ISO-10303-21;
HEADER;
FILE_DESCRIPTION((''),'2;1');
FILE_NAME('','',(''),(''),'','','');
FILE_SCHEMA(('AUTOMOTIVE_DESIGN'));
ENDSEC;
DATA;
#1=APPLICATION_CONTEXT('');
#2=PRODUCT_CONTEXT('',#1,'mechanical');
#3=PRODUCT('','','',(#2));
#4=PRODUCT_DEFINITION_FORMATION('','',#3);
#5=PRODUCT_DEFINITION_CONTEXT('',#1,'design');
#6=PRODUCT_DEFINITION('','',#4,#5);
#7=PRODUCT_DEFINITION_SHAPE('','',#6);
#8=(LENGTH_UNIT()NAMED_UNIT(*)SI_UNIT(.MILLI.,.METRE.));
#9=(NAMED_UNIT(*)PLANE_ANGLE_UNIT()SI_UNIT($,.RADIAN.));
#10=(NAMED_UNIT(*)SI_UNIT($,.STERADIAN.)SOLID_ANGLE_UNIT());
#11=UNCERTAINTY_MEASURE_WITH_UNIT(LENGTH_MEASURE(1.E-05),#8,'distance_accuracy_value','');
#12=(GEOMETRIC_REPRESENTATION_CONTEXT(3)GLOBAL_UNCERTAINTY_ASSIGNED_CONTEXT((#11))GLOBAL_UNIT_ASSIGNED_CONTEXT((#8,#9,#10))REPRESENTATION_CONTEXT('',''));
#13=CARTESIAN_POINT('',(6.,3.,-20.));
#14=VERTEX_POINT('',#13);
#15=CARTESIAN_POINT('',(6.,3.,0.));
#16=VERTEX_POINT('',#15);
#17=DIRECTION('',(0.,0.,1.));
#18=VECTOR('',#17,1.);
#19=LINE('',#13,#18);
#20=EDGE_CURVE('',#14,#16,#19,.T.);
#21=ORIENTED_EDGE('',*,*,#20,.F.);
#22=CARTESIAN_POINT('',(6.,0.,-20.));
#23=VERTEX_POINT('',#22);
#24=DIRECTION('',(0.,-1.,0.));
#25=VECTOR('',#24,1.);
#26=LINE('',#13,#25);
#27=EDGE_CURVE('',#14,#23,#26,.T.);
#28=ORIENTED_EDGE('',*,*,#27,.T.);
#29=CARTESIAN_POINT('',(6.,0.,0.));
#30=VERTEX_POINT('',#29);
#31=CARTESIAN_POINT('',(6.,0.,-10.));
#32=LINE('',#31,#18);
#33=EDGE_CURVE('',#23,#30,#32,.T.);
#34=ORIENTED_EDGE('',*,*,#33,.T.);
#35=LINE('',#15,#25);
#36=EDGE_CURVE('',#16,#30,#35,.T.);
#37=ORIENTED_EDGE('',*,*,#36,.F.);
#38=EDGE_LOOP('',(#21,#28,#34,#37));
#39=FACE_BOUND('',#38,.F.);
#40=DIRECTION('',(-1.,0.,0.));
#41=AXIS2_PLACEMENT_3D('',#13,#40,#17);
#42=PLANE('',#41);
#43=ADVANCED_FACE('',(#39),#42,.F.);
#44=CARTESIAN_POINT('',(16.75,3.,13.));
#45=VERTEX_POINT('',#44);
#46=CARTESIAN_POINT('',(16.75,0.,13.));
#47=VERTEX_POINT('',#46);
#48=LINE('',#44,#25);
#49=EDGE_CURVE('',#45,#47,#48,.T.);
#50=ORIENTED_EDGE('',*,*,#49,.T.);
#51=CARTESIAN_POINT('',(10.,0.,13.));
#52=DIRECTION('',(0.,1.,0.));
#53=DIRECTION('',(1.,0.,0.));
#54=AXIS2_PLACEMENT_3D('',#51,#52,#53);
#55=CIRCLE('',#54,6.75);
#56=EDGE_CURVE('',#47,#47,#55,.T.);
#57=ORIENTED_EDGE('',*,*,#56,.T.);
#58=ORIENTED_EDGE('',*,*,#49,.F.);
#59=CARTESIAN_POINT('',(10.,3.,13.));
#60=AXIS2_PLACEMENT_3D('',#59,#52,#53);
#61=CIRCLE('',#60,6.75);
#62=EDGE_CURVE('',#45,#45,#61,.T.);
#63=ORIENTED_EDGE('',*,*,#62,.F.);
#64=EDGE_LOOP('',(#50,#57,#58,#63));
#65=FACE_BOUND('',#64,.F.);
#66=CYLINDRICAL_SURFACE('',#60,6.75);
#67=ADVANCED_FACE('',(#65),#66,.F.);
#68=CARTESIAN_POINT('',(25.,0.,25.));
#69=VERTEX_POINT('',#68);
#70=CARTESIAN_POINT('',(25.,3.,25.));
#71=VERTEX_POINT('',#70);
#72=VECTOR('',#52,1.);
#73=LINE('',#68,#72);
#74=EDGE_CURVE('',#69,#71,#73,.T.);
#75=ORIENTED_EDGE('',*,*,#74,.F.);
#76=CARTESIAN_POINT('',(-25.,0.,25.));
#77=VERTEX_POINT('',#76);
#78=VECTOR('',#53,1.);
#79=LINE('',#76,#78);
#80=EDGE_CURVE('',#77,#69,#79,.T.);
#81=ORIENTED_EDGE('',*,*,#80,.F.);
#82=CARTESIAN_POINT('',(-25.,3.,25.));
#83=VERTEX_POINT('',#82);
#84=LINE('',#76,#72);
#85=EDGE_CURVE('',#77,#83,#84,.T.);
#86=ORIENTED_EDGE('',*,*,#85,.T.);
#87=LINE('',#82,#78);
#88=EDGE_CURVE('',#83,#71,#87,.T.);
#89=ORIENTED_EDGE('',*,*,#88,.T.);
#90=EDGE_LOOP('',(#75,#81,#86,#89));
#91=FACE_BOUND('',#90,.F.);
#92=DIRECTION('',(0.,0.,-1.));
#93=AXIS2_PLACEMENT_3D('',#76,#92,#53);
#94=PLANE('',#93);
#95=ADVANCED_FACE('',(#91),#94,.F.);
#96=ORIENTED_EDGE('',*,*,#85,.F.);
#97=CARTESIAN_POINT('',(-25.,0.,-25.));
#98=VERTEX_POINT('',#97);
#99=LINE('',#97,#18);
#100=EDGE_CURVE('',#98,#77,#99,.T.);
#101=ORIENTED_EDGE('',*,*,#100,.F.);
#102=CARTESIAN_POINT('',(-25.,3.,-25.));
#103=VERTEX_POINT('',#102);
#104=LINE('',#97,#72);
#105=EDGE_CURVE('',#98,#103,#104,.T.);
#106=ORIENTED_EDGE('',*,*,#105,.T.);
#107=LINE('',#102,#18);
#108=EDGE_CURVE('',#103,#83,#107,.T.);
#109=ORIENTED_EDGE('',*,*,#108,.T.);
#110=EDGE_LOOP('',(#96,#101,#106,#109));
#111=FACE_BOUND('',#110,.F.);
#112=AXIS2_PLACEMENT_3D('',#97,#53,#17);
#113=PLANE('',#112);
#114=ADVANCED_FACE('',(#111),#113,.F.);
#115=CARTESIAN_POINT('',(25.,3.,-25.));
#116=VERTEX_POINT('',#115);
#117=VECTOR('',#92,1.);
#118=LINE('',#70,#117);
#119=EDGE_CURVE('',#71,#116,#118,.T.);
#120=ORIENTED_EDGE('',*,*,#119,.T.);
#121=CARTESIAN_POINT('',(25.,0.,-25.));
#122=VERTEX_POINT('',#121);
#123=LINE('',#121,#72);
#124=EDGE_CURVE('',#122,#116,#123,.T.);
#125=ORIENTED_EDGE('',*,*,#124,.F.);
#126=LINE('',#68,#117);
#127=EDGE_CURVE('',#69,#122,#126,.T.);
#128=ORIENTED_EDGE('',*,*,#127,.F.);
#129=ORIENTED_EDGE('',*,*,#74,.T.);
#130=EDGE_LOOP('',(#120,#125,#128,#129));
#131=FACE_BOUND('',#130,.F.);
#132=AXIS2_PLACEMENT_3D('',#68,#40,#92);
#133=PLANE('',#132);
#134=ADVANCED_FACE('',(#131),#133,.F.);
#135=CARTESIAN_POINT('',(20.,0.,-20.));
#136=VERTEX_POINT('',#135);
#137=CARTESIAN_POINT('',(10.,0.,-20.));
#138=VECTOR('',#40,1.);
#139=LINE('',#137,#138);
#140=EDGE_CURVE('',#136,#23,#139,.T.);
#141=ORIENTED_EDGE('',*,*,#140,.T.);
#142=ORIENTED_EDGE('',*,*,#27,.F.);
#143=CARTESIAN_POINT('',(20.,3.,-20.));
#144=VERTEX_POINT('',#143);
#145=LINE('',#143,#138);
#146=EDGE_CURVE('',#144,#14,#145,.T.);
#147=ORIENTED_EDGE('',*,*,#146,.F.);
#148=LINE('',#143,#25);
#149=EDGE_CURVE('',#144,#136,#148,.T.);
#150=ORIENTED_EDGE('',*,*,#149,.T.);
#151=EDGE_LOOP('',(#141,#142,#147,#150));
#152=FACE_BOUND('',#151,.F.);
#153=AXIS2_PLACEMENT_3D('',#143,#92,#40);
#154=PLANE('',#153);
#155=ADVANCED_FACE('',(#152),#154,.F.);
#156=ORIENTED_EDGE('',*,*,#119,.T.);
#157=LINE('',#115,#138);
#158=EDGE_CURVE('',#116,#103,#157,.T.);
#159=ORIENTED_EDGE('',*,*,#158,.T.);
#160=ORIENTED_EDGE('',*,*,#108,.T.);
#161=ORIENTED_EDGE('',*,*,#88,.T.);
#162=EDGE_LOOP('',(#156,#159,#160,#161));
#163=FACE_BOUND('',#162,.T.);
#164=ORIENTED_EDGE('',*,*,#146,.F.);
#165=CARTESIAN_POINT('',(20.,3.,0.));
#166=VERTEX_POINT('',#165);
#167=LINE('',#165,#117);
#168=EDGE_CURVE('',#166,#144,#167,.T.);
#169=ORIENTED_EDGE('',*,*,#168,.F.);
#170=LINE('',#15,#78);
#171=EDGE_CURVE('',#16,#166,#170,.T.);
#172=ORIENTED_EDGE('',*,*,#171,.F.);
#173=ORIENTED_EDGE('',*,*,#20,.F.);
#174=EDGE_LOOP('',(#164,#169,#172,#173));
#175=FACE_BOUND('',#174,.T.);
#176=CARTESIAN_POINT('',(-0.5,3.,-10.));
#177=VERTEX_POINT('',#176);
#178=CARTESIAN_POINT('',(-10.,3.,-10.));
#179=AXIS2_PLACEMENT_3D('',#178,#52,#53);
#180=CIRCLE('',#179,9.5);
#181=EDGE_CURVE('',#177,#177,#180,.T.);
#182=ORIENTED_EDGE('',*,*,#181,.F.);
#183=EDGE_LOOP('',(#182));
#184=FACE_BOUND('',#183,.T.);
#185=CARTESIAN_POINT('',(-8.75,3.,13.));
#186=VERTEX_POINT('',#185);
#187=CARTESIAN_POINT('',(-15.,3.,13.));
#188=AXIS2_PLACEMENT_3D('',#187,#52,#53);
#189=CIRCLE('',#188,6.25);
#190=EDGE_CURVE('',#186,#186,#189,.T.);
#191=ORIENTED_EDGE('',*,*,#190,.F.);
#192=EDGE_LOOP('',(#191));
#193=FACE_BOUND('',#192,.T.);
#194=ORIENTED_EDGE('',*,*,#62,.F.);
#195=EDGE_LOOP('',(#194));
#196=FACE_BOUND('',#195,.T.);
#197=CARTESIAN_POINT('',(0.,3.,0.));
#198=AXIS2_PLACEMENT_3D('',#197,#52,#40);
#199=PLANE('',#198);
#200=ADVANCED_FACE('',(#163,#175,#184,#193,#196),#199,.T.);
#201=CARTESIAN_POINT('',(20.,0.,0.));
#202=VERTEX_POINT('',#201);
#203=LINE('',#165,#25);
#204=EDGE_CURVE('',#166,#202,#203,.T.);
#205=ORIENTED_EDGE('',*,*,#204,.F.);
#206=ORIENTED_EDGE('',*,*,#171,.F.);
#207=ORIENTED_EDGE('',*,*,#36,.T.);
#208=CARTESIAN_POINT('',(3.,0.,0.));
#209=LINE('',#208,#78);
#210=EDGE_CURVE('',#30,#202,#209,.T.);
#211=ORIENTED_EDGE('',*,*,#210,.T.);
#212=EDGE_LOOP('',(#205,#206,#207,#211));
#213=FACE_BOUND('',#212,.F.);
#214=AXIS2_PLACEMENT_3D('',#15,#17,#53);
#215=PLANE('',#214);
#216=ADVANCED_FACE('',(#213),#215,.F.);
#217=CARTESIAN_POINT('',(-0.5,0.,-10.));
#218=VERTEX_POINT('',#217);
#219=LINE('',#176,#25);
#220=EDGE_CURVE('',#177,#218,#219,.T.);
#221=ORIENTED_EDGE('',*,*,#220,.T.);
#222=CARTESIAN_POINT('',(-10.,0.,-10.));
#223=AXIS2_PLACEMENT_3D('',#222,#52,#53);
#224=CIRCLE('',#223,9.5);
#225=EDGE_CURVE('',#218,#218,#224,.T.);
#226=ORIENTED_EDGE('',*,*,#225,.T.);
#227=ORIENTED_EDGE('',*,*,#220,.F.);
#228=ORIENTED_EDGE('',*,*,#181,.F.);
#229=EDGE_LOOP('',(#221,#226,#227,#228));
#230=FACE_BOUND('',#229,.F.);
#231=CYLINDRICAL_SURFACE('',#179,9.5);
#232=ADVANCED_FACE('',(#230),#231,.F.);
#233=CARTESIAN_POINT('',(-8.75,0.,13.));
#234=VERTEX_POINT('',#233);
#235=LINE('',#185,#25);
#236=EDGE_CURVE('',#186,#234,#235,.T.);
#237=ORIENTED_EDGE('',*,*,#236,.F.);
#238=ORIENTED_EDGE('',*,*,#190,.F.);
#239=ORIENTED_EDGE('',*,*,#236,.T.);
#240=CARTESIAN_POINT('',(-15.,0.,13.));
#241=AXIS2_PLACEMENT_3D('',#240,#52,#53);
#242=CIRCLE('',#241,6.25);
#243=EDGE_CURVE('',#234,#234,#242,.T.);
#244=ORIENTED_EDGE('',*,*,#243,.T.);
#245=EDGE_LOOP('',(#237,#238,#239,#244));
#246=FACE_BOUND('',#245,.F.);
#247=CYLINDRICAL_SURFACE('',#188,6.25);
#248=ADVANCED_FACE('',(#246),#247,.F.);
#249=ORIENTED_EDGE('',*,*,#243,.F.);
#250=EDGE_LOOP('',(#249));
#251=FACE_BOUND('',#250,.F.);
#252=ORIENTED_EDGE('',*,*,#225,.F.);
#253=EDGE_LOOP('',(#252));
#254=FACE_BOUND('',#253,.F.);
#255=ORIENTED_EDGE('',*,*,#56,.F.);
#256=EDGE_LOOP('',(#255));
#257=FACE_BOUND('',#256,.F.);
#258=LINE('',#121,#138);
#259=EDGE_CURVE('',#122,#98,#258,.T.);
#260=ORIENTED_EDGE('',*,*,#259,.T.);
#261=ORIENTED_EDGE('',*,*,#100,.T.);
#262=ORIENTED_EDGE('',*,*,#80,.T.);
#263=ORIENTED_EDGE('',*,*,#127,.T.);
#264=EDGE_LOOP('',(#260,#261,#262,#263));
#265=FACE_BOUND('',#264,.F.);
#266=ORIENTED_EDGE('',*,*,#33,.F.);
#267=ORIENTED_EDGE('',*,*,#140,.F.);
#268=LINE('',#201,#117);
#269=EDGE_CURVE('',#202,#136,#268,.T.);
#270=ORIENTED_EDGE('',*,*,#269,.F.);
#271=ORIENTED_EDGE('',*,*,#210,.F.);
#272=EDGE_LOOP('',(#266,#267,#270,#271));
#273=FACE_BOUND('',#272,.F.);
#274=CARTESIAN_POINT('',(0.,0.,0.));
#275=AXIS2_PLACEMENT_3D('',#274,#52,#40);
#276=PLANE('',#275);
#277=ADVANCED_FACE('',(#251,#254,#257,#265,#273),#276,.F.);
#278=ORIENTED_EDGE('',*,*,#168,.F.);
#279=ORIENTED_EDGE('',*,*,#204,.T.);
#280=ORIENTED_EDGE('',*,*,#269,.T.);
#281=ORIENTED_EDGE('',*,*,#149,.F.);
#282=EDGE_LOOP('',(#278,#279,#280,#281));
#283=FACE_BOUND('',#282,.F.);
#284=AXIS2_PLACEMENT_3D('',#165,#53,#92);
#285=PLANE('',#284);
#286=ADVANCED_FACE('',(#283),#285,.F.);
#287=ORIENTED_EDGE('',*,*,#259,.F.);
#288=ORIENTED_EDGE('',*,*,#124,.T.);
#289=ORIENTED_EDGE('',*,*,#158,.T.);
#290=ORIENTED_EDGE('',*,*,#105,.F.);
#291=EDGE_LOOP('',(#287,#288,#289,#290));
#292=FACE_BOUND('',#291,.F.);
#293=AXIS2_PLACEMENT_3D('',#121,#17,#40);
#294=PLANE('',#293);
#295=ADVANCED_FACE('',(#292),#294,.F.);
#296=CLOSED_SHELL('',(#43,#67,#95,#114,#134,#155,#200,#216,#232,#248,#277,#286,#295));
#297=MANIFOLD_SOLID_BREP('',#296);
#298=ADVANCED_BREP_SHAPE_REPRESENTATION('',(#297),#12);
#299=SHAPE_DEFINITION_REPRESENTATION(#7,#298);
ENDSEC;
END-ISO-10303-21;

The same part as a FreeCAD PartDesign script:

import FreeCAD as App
import Part
import Sketcher

V = App.Vector
Q = App.Units.Quantity

doc = App.newDocument("Part")
body = doc.addObject("PartDesign::Body", "Body")

# Sketch on XZ plane
sketch1 = body.newObject("Sketcher::SketchObject", "Sketch")
sketch1.AttachmentSupport = (doc.getObject("XZ_Plane"), [""])
sketch1.MapMode = "FlatFace"
sketch1.addGeometry([
    Part.LineSegment(V(25, 25, 0), V(25, -25, 0)),
    Part.LineSegment(V(25, -25, 0), V(-25, -25, 0)),
    Part.LineSegment(V(-25, -25, 0), V(-25, 25, 0)),
    Part.LineSegment(V(-25, 25, 0), V(25, 25, 0)),
], False)
sketch1.addConstraint([
    Sketcher.Constraint("Coincident", 0, 2, 1, 1),
    Sketcher.Constraint("Coincident", 1, 2, 2, 1),
    Sketcher.Constraint("Coincident", 2, 2, 3, 1),
    Sketcher.Constraint("Coincident", 3, 2, 0, 1),
    Sketcher.Constraint("Vertical", 0),
    Sketcher.Constraint("Horizontal", 1),
    Sketcher.Constraint("Vertical", 2),
    Sketcher.Constraint("Horizontal", 3),
    Sketcher.Constraint("Symmetric", 0, 2, 2, 2, -1, 1),
    Sketcher.Constraint("Equal", 3, 0),
    Sketcher.Constraint("DistanceX", 1, 2, 1, 1, Q("50 mm")),
])
pad1 = body.newObject("PartDesign::Pad", "Pad")
pad1.Profile = sketch1
pad1.Length = 3
pad1.Reversed = True

# Sketch on XZ plane
sketch2 = body.newObject("Sketcher::SketchObject", "Sketch001")
sketch2.AttachmentSupport = (doc.getObject("XZ_Plane"), [""])
sketch2.MapMode = "FlatFace"
sketch2.AttachmentOffset = App.Placement(V(0, 0, -3), App.Rotation())
sketch2.addGeometry(Part.Circle(V(10, 13, 0), V(0, 0, 1), 7), False)
sketch2.addConstraint([
    Sketcher.Constraint("Diameter", 0, Q("13.5 mm")),
    Sketcher.Constraint("DistanceX", -1, 1, 0, 3, Q("10 mm")),
    Sketcher.Constraint("DistanceY", -1, 1, 0, 3, Q("13 mm")),
])
pocket1 = body.newObject("PartDesign::Pocket", "Pocket")
pocket1.Profile = sketch2
pocket1.Type = "ThroughAll"
pocket1.Reversed = True

# Sketch on XZ plane
sketch3 = body.newObject("Sketcher::SketchObject", "Sketch002")
sketch3.AttachmentSupport = (doc.getObject("XZ_Plane"), [""])
sketch3.MapMode = "FlatFace"
sketch3.AttachmentOffset = App.Placement(V(0, 0, -3), App.Rotation())
sketch3.addGeometry(Part.Circle(V(-15, 13, 0), V(0, 0, 1), 6), False)
sketch3.addConstraint([
    Sketcher.Constraint("Diameter", 0, Q("12.5 mm")),
    Sketcher.Constraint("DistanceX", 0, 3, -1, 1, Q("15 mm")),
    Sketcher.Constraint("DistanceY", -1, 1, 0, 3, Q("13 mm")),
])
pocket2 = body.newObject("PartDesign::Pocket", "Pocket001")
pocket2.Profile = sketch3
pocket2.Type = "ThroughAll"
pocket2.Reversed = True

# Sketch on XZ plane
sketch4 = body.newObject("Sketcher::SketchObject", "Sketch003")
sketch4.AttachmentSupport = (doc.getObject("XZ_Plane"), [""])
sketch4.MapMode = "FlatFace"
sketch4.AttachmentOffset = App.Placement(V(0, 0, -3), App.Rotation())
sketch4.addGeometry(Part.Circle(V(-10, -10, 0), V(0, 0, 1), 10), False)
sketch4.addConstraint([
    Sketcher.Constraint("Diameter", 0, Q("19 mm")),
    Sketcher.Constraint("DistanceX", 0, 3, -1, 1, Q("10 mm")),
    Sketcher.Constraint("DistanceY", 0, 3, -1, 1, Q("10 mm")),
])
pocket3 = body.newObject("PartDesign::Pocket", "Pocket002")
pocket3.Profile = sketch4
pocket3.Type = "ThroughAll"
pocket3.Reversed = True

# Sketch on XZ plane
sketch5 = body.newObject("Sketcher::SketchObject", "Sketch004")
sketch5.AttachmentSupport = (doc.getObject("XZ_Plane"), [""])
sketch5.MapMode = "FlatFace"
sketch5.AttachmentOffset = App.Placement(V(0, 0, -3), App.Rotation())
sketch5.addGeometry([
    Part.LineSegment(V(6, -20, 0), V(6, 0, 0)),
    Part.LineSegment(V(6, 0, 0), V(20, 0, 0)),
    Part.LineSegment(V(20, 0, 0), V(20, -20, 0)),
    Part.LineSegment(V(20, -20, 0), V(6, -20, 0)),
], False)
sketch5.addConstraint([
    Sketcher.Constraint("Coincident", 0, 2, 1, 1),
    Sketcher.Constraint("Coincident", 1, 2, 2, 1),
    Sketcher.Constraint("Coincident", 2, 2, 3, 1),
    Sketcher.Constraint("Coincident", 3, 2, 0, 1),
    Sketcher.Constraint("Vertical", 0),
    Sketcher.Constraint("Horizontal", 1),
    Sketcher.Constraint("Vertical", 2),
    Sketcher.Constraint("Horizontal", 3),
    Sketcher.Constraint("PointOnObject", 0, 2, -1),
    Sketcher.Constraint("DistanceX", 1, 1, 1, 2, Q("14 mm")),
    Sketcher.Constraint("DistanceY", 0, 1, 0, 2, Q("20 mm")),
    Sketcher.Constraint("DistanceX", -1, 1, 1, 2, Q("20 mm")),
])
pocket4 = body.newObject("PartDesign::Pocket", "Pocket003")
pocket4.Profile = sketch5
pocket4.Type = "ThroughAll"
pocket4.Reversed = True

doc.recompute()
